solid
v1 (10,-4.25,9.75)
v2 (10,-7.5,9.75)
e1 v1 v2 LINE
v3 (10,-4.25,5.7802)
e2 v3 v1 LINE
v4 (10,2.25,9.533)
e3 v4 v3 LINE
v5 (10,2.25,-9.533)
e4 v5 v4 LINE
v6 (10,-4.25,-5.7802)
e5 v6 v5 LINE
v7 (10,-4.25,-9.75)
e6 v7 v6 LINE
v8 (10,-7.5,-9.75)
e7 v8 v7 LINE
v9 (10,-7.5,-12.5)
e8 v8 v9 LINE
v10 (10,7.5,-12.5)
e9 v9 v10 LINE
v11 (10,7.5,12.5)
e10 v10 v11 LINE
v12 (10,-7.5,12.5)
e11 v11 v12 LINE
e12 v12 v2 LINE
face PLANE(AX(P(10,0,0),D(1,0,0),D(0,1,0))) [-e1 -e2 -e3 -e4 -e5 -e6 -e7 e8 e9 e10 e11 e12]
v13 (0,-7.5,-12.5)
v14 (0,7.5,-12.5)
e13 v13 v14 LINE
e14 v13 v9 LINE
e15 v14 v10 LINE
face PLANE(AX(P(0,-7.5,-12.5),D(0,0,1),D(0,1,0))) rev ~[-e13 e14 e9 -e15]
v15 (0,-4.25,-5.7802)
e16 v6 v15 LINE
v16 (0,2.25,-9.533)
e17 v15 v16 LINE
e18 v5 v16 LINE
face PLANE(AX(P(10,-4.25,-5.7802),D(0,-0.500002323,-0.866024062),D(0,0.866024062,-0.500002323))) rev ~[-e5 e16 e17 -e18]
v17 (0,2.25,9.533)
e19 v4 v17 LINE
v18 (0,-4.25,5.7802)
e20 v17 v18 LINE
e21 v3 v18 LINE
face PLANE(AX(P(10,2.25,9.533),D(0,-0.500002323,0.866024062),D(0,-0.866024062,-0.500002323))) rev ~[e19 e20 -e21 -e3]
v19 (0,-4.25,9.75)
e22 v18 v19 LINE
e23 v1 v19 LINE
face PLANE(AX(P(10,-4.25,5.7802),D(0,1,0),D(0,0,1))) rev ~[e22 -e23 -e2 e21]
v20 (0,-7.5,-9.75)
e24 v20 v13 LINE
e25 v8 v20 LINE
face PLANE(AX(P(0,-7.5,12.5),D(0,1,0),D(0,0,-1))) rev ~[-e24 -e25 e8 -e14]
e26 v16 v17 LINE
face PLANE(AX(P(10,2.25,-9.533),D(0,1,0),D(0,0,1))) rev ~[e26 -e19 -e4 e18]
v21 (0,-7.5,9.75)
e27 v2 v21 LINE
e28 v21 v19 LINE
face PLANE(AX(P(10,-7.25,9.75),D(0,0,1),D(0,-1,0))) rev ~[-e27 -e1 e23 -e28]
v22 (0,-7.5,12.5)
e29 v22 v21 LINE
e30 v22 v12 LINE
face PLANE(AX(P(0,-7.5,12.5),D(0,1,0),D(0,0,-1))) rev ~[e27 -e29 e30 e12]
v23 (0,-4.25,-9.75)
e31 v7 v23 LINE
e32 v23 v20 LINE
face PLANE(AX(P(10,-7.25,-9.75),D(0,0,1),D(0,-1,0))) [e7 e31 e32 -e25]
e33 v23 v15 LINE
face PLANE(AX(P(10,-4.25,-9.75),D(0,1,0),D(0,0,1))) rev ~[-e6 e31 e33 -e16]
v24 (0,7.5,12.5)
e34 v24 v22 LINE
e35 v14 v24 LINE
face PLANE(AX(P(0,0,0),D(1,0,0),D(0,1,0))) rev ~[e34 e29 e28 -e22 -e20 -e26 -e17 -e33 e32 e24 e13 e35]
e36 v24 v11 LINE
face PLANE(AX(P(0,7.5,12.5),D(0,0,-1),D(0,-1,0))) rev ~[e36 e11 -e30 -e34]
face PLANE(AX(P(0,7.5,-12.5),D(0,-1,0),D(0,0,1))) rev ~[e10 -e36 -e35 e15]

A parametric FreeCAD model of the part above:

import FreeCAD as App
import Part
import Sketcher
Q = App.Units.Quantity


def add_polygon(sketch, points):
    """Adds a closed chain of lines whose ends are joined by coincident constraints."""
    first, n = sketch.GeometryCount, len(points)
    for a, b in zip(points, points[1:] + points[:1]):
        sketch.addGeometry(Part.LineSegment(App.Vector(*a, 0), App.Vector(*b, 0)), False)
    for i in range(n):
        sketch.addConstraint(Sketcher.Constraint("Coincident", first + i, 2, first + (i + 1) % n, 1))

doc = App.newDocument("Part")
body = doc.addObject("PartDesign::Body", "Body")

sketch1 = body.newObject("Sketcher::SketchObject", "Sketch")
sketch1.AttachmentSupport = (doc.getObject("YZ_Plane"), [""])
sketch1.MapMode = "FlatFace"
add_polygon(sketch1, [(-8, 12), (-8, -12), (8, -12), (8, 12)])
sketch1.addConstraint([
    Sketcher.Constraint("Vertical", 0),
    Sketcher.Constraint("Horizontal", 1),
    Sketcher.Constraint("Vertical", 2),
    Sketcher.Constraint("Horizontal", 3),
    Sketcher.Constraint("Symmetric", 0, 2, 2, 2, -1, 1),
    Sketcher.Constraint("DistanceX", 1, 1, 1, 2, Q("15 mm")),
    Sketcher.Constraint("DistanceY", 0, 2, 0, 1, Q("25 mm")),
])
pad1 = body.newObject("PartDesign::Pad", "Pad")
pad1.Profile = sketch1
pad1.Length = 10

sketch2 = body.newObject("Sketcher::SketchObject", "Sketch001")
sketch2.AttachmentSupport = (doc.getObject("YZ_Plane"), [""])
sketch2.MapMode = "FlatFace"
sketch2.AttachmentOffset = App.Placement(App.Vector(0, 0, 10), App.Rotation())
add_polygon(sketch2, [(-7.5, -9.8), (-4.2, -9.8), (-4.2, -5.8), (2.2, -9.5), (2.2, 9.5), (-4.2, 5.8), (-4.2, 9.8), (-7.5, 9.8)])
sketch2.addConstraint([
    Sketcher.Constraint("Horizontal", 0),
    Sketcher.Constraint("Vertical", 1),
    Sketcher.Constraint("Vertical", 3),
    Sketcher.Constraint("Vertical", 5),
    Sketcher.Constraint("Horizontal", 6),
    Sketcher.Constraint("Vertical", 7),
    Sketcher.Constraint("Symmetric", 1, 2, 4, 2, -1),
    Sketcher.Constraint("Equal", 1, 5),
    Sketcher.Constraint("Equal", 2, 4),
    Sketcher.Constraint("Angle", 2, Q("-30.0002 deg")),
    Sketcher.Constraint("DistanceY", 7, 2, 7, 1, Q("19.5 mm")),
    Sketcher.Constraint("DistanceX", 0, 1, 0, 2, Q("3.25 mm")),
    Sketcher.Constraint("DistanceX", 6, 2, -1, 1, Q("7.5 mm")),
    Sketcher.Constraint("DistanceX", 0, 2, 2, 2, Q("6.5 mm")),
    Sketcher.Constraint("DistanceY", 3, 1, 3, 2, Q("19.066 mm")),
])
pocket1 = body.newObject("PartDesign::Pocket", "Pocket")
pocket1.Profile = sketch2
pocket1.Length = 10

doc.recompute()
